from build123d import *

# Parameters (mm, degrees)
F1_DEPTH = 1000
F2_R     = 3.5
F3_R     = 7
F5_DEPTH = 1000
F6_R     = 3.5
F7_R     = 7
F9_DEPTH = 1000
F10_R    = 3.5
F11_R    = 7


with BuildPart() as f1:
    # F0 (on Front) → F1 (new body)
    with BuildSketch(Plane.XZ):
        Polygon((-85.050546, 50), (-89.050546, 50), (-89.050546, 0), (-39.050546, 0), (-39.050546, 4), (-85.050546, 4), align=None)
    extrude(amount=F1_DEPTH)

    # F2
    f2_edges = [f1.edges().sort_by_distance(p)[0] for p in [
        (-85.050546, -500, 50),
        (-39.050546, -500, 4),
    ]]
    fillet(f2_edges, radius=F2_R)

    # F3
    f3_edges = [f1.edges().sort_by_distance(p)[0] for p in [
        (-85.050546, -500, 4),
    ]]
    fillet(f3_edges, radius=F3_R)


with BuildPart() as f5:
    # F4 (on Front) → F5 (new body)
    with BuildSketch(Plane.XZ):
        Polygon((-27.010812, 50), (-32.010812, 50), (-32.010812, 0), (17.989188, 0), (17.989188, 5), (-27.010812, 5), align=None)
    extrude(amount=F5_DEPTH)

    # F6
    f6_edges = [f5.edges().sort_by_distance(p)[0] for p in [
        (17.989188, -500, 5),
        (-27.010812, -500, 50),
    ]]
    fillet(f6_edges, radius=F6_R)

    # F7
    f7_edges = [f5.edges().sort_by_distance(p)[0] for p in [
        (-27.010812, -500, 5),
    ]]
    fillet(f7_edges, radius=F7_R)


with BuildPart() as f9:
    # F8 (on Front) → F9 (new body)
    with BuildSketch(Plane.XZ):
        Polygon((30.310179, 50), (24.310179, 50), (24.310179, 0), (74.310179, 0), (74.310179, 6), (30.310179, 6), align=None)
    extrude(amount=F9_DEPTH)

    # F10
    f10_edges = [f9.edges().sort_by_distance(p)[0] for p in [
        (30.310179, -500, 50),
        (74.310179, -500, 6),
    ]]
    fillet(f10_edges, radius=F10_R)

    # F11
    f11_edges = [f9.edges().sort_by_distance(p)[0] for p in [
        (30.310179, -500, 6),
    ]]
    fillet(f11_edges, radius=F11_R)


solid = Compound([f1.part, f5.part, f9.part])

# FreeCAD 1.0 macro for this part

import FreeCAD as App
import Part
import Sketcher
from FreeCAD import Vector
Q = App.Units.Quantity


def edges_at(feature, points):
    """Names of the edges that pass closest to the given points."""
    edges = feature.Shape.Edges
    near = lambda p: min(range(len(edges)), key=lambda i: edges[i].distToShape(Part.Vertex(*p))[0])
    return sorted({f"Edge{near(p) + 1}" for p in points})

doc = App.newDocument("Part")
params = doc.addObject("Spreadsheet::Sheet", "Params")
for row, (alias, value) in enumerate([
    ("sketch1_width", "4 mm"),
    ("sketch1_width2", "50 mm"),
    ("pad1_length", "1000 mm"),
    ("fillet_radius", "3.5 mm"),
    ("fillet2_radius", "7 mm"),
    ("sketch2_width", "5 mm"),
    ("sketch2_width2", "50 mm"),
    ("pad2_length", "1000 mm"),
    ("fillet3_radius", "3.5 mm"),
    ("fillet4_radius", "7 mm"),
    ("sketch3_width", "6 mm"),
    ("sketch3_width2", "50 mm"),
    ("pad3_length", "1000 mm"),
    ("fillet5_radius", "3.5 mm"),
    ("fillet6_radius", "7 mm"),
], start=1):
    params.set(f"A{row}", alias)
    params.set(f"B{row}", "=" + value)
    params.setAlias(f"B{row}", alias)

body = doc.addObject("PartDesign::Body", "Body")

sketch1 = body.newObject("Sketcher::SketchObject", "Sketch")
sketch1.AttachmentSupport = (doc.getObject("XZ_Plane"), [""])
sketch1.MapMode = "FlatFace"
sketch1.addGeometry(Part.LineSegment(Vector(-85.1, 50, 0), Vector(-89.1, 50, 0)), False)
sketch1.addGeometry(Part.LineSegment(Vector(-89.1, 50, 0), Vector(-89.1, 0, 0)), False)
sketch1.addGeometry(Part.LineSegment(Vector(-89.1, 0, 0), Vector(-39.1, 0, 0)), False)
sketch1.addGeometry(Part.LineSegment(Vector(-39.1, 0, 0), Vector(-39.1, 4, 0)), False)
sketch1.addGeometry(Part.LineSegment(Vector(-39.1, 4, 0), Vector(-85.1, 4, 0)), False)
sketch1.addGeometry(Part.LineSegment(Vector(-85.1, 4, 0), Vector(-85.1, 50, 0)), False)
sketch1.addConstraint(Sketcher.Constraint("Coincident", 0, 2, 1, 1))
sketch1.addConstraint(Sketcher.Constraint("Coincident", 1, 2, 2, 1))
sketch1.addConstraint(Sketcher.Constraint("Coincident", 2, 2, 3, 1))
sketch1.addConstraint(Sketcher.Constraint("Coincident", 3, 2, 4, 1))
sketch1.addConstraint(Sketcher.Constraint("Coincident", 4, 2, 5, 1))
sketch1.addConstraint(Sketcher.Constraint("Coincident", 5, 2, 0, 1))
sketch1.addConstraint(Sketcher.Constraint("Horizontal", 0))
sketch1.addConstraint(Sketcher.Constraint("Vertical", 1))
sketch1.addConstraint(Sketcher.Constraint("Horizontal", 2))
sketch1.addConstraint(Sketcher.Constraint("Vertical", 3))
sketch1.addConstraint(Sketcher.Constraint("Horizontal", 4))
sketch1.addConstraint(Sketcher.Constraint("Vertical", 5))
sketch1.addConstraint(Sketcher.Constraint("PointOnObject", 1, 2, -1))
sketch1.addConstraint(Sketcher.Constraint("Equal", 2, 1))
sketch1.addConstraint(Sketcher.Constraint("Equal", 0, 3))
sketch1.addConstraint(Sketcher.Constraint("DistanceX", 0, 2, 0, 1, Q("4 mm")))
sketch1.addConstraint(Sketcher.Constraint("DistanceX", 2, 1, 2, 2, Q("50 mm")))
sketch1.addConstraint(Sketcher.Constraint("DistanceX", 0, 2, -1, 1, Q("89.050546 mm")))
sketch1.setExpression("Constraints[15]", "Params.sketch1_width")
sketch1.setExpression("Constraints[16]", "Params.sketch1_width2")
pad1 = body.newObject("PartDesign::Pad", "Pad")
pad1.Profile = sketch1
pad1.setExpression("Length", "Params.pad1_length")
doc.recompute()

fillet = body.newObject("PartDesign::Fillet", "Fillet")
fillet.Base = (pad1, edges_at(pad1, [(-85.051, -500, 50), (-39.051, -500, 4)]))
fillet.setExpression("Radius", "Params.fillet_radius")
doc.recompute()

fillet2 = body.newObject("PartDesign::Fillet", "Fillet001")
fillet2.Base = (fillet, edges_at(fillet, [(-85.051, -500, 4)]))
fillet2.setExpression("Radius", "Params.fillet2_radius")
body2 = doc.addObject("PartDesign::Body", "Body001")

sketch2 = body2.newObject("Sketcher::SketchObject", "Sketch001")
sketch2.AttachmentSupport = (doc.getObject("XZ_Plane001"), [""])
sketch2.MapMode = "FlatFace"
sketch2.addGeometry(Part.LineSegment(Vector(-27, 50, 0), Vector(-32, 50, 0)), False)
sketch2.addGeometry(Part.LineSegment(Vector(-32, 50, 0), Vector(-32, 0, 0)), False)
sketch2.addGeometry(Part.LineSegment(Vector(-32, 0, 0), Vector(18, 0, 0)), False)
sketch2.addGeometry(Part.LineSegment(Vector(18, 0, 0), Vector(18, 5, 0)), False)
sketch2.addGeometry(Part.LineSegment(Vector(18, 5, 0), Vector(-27, 5, 0)), False)
sketch2.addGeometry(Part.LineSegment(Vector(-27, 5, 0), Vector(-27, 50, 0)), False)
sketch2.addConstraint(Sketcher.Constraint("Coincident", 0, 2, 1, 1))
sketch2.addConstraint(Sketcher.Constraint("Coincident", 1, 2, 2, 1))
sketch2.addConstraint(Sketcher.Constraint("Coincident", 2, 2, 3, 1))
sketch2.addConstraint(Sketcher.Constraint("Coincident", 3, 2, 4, 1))
sketch2.addConstraint(Sketcher.Constraint("Coincident", 4, 2, 5, 1))
sketch2.addConstraint(Sketcher.Constraint("Coincident", 5, 2, 0, 1))
sketch2.addConstraint(Sketcher.Constraint("Horizontal", 0))
sketch2.addConstraint(Sketcher.Constraint("Vertical", 1))
sketch2.addConstraint(Sketcher.Constraint("Horizontal", 2))
sketch2.addConstraint(Sketcher.Constraint("Vertical", 3))
sketch2.addConstraint(Sketcher.Constraint("Horizontal", 4))
sketch2.addConstraint(Sketcher.Constraint("Vertical", 5))
sketch2.addConstraint(Sketcher.Constraint("PointOnObject", 1, 2, -1))
sketch2.addConstraint(Sketcher.Constraint("Equal", 2, 1))
sketch2.addConstraint(Sketcher.Constraint("Equal", 0, 3))
sketch2.addConstraint(Sketcher.Constraint("DistanceX", 0, 2, 0, 1, Q("5 mm")))
sketch2.addConstraint(Sketcher.Constraint("DistanceX", 2, 1, 2, 2, Q("50 mm")))
sketch2.addConstraint(Sketcher.Constraint("DistanceX", 0, 2, -1, 1, Q("32.010812 mm")))
sketch2.setExpression("Constraints[15]", "Params.sketch2_width")
sketch2.setExpression("Constraints[16]", "Params.sketch2_width2")
pad2 = body2.newObject("PartDesign::Pad", "Pad001")
pad2.Profile = sketch2
pad2.setExpression("Length", "Params.pad2_length")
doc.recompute()

fillet3 = body2.newObject("PartDesign::Fillet", "Fillet002")
fillet3.Base = (pad2, edges_at(pad2, [(17.989, -500, 5), (-27.011, -500, 50)]))
fillet3.setExpression("Radius", "Params.fillet3_radius")
doc.recompute()

fillet4 = body2.newObject("PartDesign::Fillet", "Fillet003")
fillet4.Base = (fillet3, edges_at(fillet3, [(-27.011, -500, 5)]))
fillet4.setExpression("Radius", "Params.fillet4_radius")
body3 = doc.addObject("PartDesign::Body", "Body002")

sketch3 = body3.newObject("Sketcher::SketchObject", "Sketch002")
sketch3.AttachmentSupport = (doc.getObject("XZ_Plane002"), [""])
sketch3.MapMode = "FlatFace"
sketch3.addGeometry(Part.LineSegment(Vector(30, 50, 0), Vector(24, 50, 0)), False)
sketch3.addGeometry(Part.LineSegment(Vector(24, 50, 0), Vector(24, 0, 0)), False)
sketch3.addGeometry(Part.LineSegment(Vector(24, 0, 0), Vector(74, 0, 0)), False)
sketch3.addGeometry(Part.LineSegment(Vector(74, 0, 0), Vector(74, 6, 0)), False)
sketch3.addGeometry(Part.LineSegment(Vector(74, 6, 0), Vector(30, 6, 0)), False)
sketch3.addGeometry(Part.LineSegment(Vector(30, 6, 0), Vector(30, 50, 0)), False)
sketch3.addConstraint(Sketcher.Constraint("Coincident", 0, 2, 1, 1))
sketch3.addConstraint(Sketcher.Constraint("Coincident", 1, 2, 2, 1))
sketch3.addConstraint(Sketcher.Constraint("Coincident", 2, 2, 3, 1))
sketch3.addConstraint(Sketcher.Constraint("Coincident", 3, 2, 4, 1))
sketch3.addConstraint(Sketcher.Constraint("Coincident", 4, 2, 5, 1))
sketch3.addConstraint(Sketcher.Constraint("Coincident", 5, 2, 0, 1))
sketch3.addConstraint(Sketcher.Constraint("Horizontal", 0))
sketch3.addConstraint(Sketcher.Constraint("Vertical", 1))
sketch3.addConstraint(Sketcher.Constraint("Horizontal", 2))
sketch3.addConstraint(Sketcher.Constraint("Vertical", 3))
sketch3.addConstraint(Sketcher.Constraint("Horizontal", 4))
sketch3.addConstraint(Sketcher.Constraint("Vertical", 5))
sketch3.addConstraint(Sketcher.Constraint("PointOnObject", 1, 2, -1))
sketch3.addConstraint(Sketcher.Constraint("Equal", 2, 1))
sketch3.addConstraint(Sketcher.Constraint("Equal", 0, 3))
sketch3.addConstraint(Sketcher.Constraint("DistanceX", 0, 2, 0, 1, Q("6 mm")))
sketch3.addConstraint(Sketcher.Constraint("DistanceX", 2, 1, 2, 2, Q("50 mm")))
sketch3.addConstraint(Sketcher.Constraint("DistanceX", -1, 1, 0, 2, Q("24.310179 mm")))
sketch3.setExpression("Constraints[15]", "Params.sketch3_width")
sketch3.setExpression("Constraints[16]", "Params.sketch3_width2")
pad3 = body3.newObject("PartDesign::Pad", "Pad002")
pad3.Profile = sketch3
pad3.setExpression("Length", "Params.pad3_length")
doc.recompute()

fillet5 = body3.newObject("PartDesign::Fillet", "Fillet004")
fillet5.Base = (pad3, edges_at(pad3, [(30.31, -500, 50), (74.31, -500, 6)]))
fillet5.setExpression("Radius", "Params.fillet5_radius")
doc.recompute()

fillet6 = body3.newObject("PartDesign::Fillet", "Fillet005")
fillet6.Base = (fillet5, edges_at(fillet5, [(30.31, -500, 6)]))
fillet6.setExpression("Radius", "Params.fillet6_radius")

doc.recompute()
